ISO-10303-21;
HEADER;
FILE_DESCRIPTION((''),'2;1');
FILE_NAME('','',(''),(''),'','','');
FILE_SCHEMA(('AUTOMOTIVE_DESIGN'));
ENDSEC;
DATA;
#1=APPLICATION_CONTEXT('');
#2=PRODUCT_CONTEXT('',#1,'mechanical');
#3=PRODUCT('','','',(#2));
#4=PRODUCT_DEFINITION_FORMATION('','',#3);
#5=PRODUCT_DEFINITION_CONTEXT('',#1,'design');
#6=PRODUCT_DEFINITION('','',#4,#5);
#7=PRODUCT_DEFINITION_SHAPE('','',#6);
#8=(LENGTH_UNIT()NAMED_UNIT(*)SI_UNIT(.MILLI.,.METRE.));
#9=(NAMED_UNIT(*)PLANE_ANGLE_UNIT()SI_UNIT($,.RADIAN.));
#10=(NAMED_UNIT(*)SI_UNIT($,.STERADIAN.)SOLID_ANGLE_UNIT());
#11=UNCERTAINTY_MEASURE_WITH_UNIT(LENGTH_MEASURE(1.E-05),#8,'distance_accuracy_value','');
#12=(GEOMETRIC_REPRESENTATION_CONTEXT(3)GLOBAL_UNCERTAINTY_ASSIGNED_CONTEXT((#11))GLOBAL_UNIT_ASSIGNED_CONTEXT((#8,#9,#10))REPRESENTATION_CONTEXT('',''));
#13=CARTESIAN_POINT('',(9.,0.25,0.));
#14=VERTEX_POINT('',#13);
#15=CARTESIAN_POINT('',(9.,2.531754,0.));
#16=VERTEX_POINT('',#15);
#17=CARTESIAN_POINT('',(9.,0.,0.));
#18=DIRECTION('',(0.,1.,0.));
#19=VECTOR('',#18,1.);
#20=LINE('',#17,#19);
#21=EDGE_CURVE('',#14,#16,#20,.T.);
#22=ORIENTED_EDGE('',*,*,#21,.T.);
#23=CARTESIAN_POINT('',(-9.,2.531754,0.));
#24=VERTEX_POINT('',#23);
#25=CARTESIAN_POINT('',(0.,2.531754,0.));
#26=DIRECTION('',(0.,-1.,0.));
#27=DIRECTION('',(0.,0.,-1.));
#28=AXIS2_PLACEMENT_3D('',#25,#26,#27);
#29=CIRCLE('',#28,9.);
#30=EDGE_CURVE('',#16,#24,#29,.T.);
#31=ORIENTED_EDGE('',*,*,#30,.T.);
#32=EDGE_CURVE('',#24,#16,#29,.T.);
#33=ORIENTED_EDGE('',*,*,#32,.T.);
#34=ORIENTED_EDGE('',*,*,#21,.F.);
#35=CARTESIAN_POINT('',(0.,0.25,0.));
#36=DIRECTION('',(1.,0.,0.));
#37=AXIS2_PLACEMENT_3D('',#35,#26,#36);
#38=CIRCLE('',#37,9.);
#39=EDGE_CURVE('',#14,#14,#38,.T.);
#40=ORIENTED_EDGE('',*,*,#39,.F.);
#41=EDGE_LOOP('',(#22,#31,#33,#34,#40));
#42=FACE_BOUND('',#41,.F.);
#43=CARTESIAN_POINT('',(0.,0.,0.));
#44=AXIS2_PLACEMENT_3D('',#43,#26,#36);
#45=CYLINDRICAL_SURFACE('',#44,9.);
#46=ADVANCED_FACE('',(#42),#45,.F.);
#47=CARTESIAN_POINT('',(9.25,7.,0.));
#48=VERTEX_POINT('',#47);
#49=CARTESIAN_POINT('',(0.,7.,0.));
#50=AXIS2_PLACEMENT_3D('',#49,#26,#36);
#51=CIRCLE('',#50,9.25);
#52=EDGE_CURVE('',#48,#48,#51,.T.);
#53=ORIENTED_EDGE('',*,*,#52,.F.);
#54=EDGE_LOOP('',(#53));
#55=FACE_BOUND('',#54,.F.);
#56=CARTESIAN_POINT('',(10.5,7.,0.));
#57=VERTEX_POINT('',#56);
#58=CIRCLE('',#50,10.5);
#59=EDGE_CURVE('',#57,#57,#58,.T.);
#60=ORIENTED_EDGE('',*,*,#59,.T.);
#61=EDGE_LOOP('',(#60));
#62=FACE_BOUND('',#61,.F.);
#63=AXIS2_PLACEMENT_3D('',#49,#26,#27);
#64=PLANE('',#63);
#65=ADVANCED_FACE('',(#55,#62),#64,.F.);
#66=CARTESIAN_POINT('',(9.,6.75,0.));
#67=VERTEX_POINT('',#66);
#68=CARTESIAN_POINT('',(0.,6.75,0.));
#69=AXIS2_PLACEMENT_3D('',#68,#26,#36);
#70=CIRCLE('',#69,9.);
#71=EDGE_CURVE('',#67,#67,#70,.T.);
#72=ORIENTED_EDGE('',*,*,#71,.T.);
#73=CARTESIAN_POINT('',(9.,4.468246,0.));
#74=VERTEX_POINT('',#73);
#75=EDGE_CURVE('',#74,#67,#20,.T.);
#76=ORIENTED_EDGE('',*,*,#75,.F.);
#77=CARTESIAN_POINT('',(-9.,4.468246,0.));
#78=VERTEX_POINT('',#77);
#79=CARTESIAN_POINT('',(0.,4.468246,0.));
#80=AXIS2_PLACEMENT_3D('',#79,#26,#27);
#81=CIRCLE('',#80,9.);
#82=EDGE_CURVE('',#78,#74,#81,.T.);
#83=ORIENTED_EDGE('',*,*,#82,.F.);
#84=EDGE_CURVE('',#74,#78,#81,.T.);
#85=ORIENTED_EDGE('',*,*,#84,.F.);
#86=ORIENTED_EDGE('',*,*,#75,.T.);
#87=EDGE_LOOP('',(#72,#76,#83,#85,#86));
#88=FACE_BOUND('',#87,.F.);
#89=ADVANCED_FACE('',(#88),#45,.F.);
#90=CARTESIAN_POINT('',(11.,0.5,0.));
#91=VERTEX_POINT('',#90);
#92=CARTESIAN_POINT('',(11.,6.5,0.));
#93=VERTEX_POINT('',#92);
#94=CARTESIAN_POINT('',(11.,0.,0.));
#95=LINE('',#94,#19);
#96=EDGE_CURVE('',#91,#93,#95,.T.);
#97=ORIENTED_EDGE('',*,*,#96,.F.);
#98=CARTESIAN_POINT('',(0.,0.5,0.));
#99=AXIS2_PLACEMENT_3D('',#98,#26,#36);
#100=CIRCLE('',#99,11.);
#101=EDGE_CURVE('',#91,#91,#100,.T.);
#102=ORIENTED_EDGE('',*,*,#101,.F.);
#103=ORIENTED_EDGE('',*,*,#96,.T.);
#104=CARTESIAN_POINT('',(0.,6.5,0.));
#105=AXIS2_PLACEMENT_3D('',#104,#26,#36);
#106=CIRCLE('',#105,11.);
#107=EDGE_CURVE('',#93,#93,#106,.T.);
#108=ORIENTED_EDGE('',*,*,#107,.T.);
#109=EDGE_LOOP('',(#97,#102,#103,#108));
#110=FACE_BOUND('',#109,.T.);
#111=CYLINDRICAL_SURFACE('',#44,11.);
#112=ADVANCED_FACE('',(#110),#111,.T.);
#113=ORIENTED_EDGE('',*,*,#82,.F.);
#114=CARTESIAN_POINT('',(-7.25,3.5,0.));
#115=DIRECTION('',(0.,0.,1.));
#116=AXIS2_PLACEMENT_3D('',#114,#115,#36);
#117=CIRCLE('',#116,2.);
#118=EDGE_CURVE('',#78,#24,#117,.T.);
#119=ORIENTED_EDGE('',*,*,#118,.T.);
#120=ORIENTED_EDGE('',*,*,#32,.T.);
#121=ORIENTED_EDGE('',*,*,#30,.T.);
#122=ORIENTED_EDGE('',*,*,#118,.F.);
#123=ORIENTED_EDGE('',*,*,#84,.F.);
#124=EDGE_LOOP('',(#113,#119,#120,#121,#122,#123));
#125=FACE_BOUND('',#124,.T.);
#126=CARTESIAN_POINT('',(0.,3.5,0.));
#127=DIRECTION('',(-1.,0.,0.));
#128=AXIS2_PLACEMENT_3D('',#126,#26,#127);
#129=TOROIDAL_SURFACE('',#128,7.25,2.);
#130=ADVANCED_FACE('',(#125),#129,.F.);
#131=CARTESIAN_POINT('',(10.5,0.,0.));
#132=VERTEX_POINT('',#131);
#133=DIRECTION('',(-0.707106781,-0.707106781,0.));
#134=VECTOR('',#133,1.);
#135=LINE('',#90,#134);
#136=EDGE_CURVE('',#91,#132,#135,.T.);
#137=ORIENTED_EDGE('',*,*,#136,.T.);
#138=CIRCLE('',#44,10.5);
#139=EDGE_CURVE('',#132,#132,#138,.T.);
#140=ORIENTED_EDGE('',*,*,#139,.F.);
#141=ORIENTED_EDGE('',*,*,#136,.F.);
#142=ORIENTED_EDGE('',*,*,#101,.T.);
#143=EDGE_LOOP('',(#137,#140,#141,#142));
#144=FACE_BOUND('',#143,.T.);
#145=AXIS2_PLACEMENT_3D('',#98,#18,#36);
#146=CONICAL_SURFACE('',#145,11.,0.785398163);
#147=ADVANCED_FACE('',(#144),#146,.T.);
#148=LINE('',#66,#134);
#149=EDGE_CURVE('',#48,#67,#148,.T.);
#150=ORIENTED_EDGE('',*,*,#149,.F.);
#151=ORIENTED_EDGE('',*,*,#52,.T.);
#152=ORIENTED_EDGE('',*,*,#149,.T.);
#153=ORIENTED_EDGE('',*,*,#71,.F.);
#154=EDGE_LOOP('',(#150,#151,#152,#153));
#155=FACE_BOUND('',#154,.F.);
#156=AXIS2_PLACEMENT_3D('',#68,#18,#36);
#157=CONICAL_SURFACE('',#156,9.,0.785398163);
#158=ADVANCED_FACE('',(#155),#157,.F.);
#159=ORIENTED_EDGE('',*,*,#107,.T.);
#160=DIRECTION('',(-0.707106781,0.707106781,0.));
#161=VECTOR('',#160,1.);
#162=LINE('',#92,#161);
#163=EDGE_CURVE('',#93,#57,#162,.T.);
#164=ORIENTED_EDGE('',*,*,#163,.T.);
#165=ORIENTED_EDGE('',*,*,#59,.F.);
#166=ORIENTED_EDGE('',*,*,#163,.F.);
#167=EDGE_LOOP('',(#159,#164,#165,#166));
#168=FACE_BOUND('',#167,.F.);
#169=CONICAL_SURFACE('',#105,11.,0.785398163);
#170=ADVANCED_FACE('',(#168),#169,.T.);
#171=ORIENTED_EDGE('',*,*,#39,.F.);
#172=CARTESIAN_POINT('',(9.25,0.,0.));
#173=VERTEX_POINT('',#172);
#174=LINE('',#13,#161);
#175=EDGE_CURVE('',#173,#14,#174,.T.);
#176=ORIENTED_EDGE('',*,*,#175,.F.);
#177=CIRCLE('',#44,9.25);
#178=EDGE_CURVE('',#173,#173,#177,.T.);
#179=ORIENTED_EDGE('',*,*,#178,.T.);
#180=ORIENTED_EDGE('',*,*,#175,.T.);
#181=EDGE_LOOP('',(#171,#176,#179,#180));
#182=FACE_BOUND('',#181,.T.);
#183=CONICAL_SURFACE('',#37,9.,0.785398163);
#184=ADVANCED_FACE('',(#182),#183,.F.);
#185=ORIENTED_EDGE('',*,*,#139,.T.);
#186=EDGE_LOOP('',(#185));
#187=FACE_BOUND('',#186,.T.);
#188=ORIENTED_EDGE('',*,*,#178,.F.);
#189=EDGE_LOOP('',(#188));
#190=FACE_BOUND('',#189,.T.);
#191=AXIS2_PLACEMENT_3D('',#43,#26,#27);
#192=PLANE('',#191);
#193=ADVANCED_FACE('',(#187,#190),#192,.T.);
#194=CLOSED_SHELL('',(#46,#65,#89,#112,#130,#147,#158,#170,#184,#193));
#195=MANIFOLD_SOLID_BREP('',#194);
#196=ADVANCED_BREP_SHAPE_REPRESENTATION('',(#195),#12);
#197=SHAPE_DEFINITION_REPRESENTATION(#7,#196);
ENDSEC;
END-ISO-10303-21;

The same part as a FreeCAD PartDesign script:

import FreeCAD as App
import Part
import Sketcher
Q = App.Units.Quantity


def edges_at(feature, points):
    """Names of the edges that pass closest to the given points."""
    edges = feature.Shape.Edges
    near = lambda p: min(range(len(edges)), key=lambda i: edges[i].distToShape(Part.Vertex(*p))[0])
    return sorted({f"Edge{near(p) + 1}" for p in points})

doc = App.newDocument("Part")
body = doc.addObject("PartDesign::Body", "Body")

sketch1 = body.newObject("Sketcher::SketchObject", "Sketch")
sketch1.AttachmentSupport = (doc.getObject("XZ_Plane"), [""])
sketch1.MapMode = "FlatFace"
sketch1.addGeometry([
    Part.Circle(App.Vector(0, 0, 0), App.Vector(0, 0, 1), 11),
    Part.Circle(App.Vector(0, 0, 0), App.Vector(0, 0, 1), 9),
], False)
sketch1.addConstraint([
    Sketcher.Constraint("Coincident", 0, 3, -1, 1),
    Sketcher.Constraint("Coincident", 1, 3, -1, 1),
    Sketcher.Constraint("Diameter", 0, Q("22 mm")),
    Sketcher.Constraint("Diameter", 1, Q("18 mm")),
])
pad1 = body.newObject("PartDesign::Pad", "Pad")
pad1.Profile = sketch1
pad1.Length = 7
pad1.Reversed = True

sketch2 = body.newObject("Sketcher::SketchObject", "Sketch001")
sketch2.AttachmentSupport = (doc.getObject("XY_Plane"), [""])
sketch2.MapMode = "FlatFace"
sketch2.addGeometry(Part.Circle(App.Vector(-7.2, 3.5, 0), App.Vector(0, 0, 1), 2), False)
sketch2.addConstraint([
    Sketcher.Constraint("Diameter", 0, Q("4 mm")),
    Sketcher.Constraint("DistanceY", -1, 1, 0, 3, Q("3.5 mm")),
    Sketcher.Constraint("DistanceX", 0, 3, -1, 1, Q("7.25 mm")),
])
groove = body.newObject("PartDesign::Groove", "Groove")
groove.Profile = sketch2
groove.ReferenceAxis = (sketch2, ["V_Axis"])
groove.Angle = 360
doc.recompute()

chamfer = body.newObject("PartDesign::Chamfer", "Chamfer")
chamfer.Base = (groove, edges_at(groove, [(-11, 0, 0), (-11, 7, 0)]))
chamfer.Size = 0.5
doc.recompute()

chamfer2 = body.newObject("PartDesign::Chamfer", "Chamfer001")
chamfer2.Base = (chamfer, edges_at(chamfer, [(-9, 0, 0), (-9, 7, 0)]))
chamfer2.Size = 0.25

doc.recompute()
